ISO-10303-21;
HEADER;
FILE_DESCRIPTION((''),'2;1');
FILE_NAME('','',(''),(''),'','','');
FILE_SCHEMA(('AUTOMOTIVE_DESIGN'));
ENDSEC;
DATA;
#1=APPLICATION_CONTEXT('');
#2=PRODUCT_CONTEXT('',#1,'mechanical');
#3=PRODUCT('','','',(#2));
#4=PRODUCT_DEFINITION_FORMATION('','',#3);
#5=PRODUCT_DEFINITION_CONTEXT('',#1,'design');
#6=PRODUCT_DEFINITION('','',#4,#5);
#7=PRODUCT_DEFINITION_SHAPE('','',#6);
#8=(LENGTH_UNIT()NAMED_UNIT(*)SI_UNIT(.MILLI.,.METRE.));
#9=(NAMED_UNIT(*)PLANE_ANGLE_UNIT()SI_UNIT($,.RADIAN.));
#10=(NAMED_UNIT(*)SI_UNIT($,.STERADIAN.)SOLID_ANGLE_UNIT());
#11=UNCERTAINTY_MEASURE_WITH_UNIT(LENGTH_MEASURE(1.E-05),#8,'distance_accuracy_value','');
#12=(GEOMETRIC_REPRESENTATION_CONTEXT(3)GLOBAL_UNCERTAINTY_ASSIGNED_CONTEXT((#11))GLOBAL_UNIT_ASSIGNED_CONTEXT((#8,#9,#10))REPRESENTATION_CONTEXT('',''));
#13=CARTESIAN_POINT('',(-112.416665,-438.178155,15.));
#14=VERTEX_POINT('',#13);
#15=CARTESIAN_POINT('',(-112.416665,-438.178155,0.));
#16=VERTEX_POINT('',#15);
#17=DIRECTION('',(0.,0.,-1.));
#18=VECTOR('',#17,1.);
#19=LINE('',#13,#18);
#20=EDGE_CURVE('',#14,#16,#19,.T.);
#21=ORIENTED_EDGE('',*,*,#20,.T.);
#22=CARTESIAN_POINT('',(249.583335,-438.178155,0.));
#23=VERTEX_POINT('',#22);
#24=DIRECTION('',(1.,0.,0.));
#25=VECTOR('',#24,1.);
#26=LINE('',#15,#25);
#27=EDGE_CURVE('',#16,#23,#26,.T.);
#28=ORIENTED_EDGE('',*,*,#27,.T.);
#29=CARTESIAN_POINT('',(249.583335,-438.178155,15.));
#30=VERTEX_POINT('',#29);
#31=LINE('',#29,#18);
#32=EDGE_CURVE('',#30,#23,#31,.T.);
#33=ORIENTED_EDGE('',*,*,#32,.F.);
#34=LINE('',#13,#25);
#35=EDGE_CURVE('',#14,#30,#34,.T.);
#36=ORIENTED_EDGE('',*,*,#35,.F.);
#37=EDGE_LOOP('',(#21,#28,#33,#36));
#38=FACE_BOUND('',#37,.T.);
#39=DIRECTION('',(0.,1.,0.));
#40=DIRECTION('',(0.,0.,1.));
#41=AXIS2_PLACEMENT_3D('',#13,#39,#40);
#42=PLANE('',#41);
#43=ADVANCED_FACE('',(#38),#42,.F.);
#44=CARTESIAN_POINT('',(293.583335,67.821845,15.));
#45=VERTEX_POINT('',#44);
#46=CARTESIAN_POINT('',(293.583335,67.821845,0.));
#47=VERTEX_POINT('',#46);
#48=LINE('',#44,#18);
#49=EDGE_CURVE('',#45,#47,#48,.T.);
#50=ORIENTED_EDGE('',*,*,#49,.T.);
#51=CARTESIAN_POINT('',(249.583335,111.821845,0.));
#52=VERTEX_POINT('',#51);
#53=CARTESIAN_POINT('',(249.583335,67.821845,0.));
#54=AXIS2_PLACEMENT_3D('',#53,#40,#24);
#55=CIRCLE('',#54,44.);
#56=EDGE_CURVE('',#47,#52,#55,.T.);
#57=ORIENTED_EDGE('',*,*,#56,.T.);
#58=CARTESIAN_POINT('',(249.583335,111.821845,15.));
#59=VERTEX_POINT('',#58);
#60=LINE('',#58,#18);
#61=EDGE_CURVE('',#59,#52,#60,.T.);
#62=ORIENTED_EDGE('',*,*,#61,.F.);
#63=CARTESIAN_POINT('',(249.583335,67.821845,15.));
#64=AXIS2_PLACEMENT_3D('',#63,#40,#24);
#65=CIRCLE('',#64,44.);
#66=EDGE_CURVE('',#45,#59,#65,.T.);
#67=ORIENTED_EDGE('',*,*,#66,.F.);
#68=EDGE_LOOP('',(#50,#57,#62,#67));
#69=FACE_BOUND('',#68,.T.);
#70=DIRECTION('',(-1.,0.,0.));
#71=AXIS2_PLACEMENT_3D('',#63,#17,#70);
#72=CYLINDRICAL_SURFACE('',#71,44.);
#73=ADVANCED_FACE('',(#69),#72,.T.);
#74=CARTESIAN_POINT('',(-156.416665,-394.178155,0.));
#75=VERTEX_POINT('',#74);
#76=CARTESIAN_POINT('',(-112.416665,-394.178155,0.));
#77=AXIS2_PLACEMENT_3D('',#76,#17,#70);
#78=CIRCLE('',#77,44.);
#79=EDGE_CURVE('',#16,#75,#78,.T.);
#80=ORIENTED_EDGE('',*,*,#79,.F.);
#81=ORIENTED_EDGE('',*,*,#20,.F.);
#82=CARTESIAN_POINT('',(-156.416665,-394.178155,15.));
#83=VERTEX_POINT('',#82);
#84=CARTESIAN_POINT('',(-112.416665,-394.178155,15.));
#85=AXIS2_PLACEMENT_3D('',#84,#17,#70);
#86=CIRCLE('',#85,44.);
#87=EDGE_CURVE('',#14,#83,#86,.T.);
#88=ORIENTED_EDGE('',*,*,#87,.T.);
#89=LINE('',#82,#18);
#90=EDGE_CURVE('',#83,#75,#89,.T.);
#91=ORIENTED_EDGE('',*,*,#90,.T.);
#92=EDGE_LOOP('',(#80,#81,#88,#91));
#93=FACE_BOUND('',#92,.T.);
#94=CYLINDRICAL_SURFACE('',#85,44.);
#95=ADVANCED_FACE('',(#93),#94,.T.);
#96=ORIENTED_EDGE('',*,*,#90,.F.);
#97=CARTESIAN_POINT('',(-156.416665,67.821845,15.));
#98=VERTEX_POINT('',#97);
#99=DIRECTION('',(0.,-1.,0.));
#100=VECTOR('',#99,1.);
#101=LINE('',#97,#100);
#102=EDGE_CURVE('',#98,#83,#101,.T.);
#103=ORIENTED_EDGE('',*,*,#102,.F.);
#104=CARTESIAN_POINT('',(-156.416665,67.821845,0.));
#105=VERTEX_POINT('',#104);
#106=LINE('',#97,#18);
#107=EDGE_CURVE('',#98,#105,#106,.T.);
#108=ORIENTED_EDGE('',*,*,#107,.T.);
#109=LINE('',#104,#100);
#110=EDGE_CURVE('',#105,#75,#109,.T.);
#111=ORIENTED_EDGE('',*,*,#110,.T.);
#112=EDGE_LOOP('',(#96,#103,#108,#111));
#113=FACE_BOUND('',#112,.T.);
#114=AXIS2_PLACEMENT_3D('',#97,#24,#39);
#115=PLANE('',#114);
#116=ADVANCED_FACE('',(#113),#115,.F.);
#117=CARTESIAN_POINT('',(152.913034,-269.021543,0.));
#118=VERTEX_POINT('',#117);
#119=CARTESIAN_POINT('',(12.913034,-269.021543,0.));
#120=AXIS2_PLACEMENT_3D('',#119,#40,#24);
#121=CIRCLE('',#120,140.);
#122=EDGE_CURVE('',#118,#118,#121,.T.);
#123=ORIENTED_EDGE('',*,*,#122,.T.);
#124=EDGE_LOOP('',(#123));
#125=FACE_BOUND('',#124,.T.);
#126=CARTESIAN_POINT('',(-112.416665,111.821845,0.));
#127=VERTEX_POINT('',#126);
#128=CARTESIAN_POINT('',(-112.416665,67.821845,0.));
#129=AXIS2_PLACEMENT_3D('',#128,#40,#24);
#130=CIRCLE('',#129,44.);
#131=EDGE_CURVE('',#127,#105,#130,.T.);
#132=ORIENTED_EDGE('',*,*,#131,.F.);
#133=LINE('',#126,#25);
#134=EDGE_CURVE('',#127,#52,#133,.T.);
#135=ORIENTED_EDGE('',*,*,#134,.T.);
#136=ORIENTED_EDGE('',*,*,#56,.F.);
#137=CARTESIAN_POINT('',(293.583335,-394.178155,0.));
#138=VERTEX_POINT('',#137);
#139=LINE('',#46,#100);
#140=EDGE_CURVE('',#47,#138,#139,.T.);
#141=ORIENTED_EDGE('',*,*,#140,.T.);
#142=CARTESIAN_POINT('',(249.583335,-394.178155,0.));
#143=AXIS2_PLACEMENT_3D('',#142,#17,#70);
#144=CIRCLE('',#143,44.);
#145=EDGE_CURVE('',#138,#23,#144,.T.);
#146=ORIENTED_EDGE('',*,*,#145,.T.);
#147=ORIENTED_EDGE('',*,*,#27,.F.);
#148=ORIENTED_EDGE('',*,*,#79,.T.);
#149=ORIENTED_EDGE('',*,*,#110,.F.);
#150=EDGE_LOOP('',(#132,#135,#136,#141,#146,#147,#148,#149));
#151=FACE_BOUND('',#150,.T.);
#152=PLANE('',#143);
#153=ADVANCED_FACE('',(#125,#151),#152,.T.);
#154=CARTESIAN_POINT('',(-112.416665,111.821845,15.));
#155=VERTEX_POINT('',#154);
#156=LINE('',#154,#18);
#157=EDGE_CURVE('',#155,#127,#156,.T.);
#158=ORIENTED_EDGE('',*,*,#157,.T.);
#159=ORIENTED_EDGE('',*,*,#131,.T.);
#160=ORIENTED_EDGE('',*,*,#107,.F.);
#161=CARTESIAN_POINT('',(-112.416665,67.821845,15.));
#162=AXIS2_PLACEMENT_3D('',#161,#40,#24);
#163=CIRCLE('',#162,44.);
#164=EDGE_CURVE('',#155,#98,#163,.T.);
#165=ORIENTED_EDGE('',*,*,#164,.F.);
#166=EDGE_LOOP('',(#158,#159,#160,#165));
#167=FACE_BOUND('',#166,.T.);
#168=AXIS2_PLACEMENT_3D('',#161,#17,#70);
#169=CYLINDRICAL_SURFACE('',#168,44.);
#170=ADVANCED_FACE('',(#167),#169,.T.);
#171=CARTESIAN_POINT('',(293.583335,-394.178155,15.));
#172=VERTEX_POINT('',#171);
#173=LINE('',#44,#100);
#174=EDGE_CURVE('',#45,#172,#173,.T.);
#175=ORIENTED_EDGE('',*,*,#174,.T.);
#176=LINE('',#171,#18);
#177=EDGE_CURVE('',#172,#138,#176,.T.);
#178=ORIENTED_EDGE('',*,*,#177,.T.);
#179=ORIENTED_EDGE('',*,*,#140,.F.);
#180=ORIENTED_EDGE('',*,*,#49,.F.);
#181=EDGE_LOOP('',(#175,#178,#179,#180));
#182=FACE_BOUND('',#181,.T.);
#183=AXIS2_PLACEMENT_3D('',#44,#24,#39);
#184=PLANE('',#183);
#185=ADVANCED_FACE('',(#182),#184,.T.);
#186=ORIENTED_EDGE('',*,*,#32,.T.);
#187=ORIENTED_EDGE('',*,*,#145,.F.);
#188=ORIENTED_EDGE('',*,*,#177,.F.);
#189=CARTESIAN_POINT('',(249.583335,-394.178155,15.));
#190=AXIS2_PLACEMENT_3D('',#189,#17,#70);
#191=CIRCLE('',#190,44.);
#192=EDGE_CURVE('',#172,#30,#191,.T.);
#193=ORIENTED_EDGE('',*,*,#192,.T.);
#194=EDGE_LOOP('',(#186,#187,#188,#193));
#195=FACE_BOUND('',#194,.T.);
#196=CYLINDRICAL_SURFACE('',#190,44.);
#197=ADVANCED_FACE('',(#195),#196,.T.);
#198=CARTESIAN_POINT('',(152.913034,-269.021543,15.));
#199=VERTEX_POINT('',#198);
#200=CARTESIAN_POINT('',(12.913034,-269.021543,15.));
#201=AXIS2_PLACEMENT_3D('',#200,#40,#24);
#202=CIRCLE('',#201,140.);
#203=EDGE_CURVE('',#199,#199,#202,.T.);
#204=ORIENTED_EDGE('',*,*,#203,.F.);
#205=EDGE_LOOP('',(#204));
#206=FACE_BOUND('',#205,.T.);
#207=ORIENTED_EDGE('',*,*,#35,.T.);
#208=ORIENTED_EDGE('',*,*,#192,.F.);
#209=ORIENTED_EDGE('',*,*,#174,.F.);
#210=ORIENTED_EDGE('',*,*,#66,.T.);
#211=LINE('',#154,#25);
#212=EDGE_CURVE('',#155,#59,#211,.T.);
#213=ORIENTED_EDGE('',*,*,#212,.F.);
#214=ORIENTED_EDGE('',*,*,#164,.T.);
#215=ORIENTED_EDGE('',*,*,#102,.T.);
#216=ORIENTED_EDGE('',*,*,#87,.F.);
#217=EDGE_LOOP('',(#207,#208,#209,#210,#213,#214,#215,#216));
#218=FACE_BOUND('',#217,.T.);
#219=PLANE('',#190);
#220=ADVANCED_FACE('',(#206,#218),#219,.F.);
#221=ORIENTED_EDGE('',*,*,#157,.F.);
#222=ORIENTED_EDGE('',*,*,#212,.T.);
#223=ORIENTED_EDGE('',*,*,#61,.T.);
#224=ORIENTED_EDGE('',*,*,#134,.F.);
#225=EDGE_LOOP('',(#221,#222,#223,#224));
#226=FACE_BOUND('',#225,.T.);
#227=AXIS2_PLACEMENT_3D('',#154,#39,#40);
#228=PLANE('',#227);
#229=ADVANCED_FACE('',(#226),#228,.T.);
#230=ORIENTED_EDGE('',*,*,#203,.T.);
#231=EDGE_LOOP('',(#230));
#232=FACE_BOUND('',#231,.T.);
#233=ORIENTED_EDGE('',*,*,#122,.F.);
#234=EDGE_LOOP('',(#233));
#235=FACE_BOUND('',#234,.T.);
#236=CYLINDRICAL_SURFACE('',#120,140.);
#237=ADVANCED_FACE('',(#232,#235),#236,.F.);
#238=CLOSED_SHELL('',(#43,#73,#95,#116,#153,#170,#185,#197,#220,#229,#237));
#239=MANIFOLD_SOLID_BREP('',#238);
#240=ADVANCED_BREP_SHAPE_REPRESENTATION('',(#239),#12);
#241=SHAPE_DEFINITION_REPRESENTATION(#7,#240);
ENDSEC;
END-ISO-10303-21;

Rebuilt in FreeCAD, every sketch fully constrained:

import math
import FreeCAD as App
import Part
import Sketcher

V = App.Vector

doc = App.newDocument("Part")
body = doc.addObject("PartDesign::Body", "Body")

# Sketch on XY plane
sketch1 = body.newObject("Sketcher::SketchObject", "Sketch")
sketch1.AttachmentSupport = (doc.getObject("XY_Plane"), [""])
sketch1.MapMode = "FlatFace"
sketch1.addGeometry(Part.LineSegment(V(250, 112, 0), V(-112, 112, 0)), False)
sketch1.addGeometry(Part.ArcOfCircle(Part.Circle(V(-112, 68, 0), V(0, 0, 1), 44), math.radians(90), math.radians(180)), False)
sketch1.addGeometry(Part.LineSegment(V(-156, 68, 0), V(-156, -394, 0)), False)
sketch1.addGeometry(Part.ArcOfCircle(Part.Circle(V(-112, -394, 0), V(0, 0, 1), 44), math.radians(-180), math.radians(-90)), False)
sketch1.addGeometry(Part.LineSegment(V(-112, -438, 0), V(250, -438, 0)), False)
sketch1.addGeometry(Part.ArcOfCircle(Part.Circle(V(250, -394, 0), V(0, 0, 1), 44), math.radians(-90), math.radians(0)), False)
sketch1.addGeometry(Part.LineSegment(V(294, -394, 0), V(294, 68, 0)), False)
sketch1.addGeometry(Part.ArcOfCircle(Part.Circle(V(250, 68, 0), V(0, 0, 1), 44), math.radians(0), math.radians(90)), False)
sketch1.addConstraint(Sketcher.Constraint("Tangent", 0, 2, 1, 1))
sketch1.addConstraint(Sketcher.Constraint("Tangent", 1, 2, 2, 1))
sketch1.addConstraint(Sketcher.Constraint("Tangent", 2, 2, 3, 1))
sketch1.addConstraint(Sketcher.Constraint("Tangent", 3, 2, 4, 1))
sketch1.addConstraint(Sketcher.Constraint("Tangent", 4, 2, 5, 1))
sketch1.addConstraint(Sketcher.Constraint("Tangent", 5, 2, 6, 1))
sketch1.addConstraint(Sketcher.Constraint("Tangent", 6, 2, 7, 1))
sketch1.addConstraint(Sketcher.Constraint("Tangent", 7, 2, 0, 1))
sketch1.addConstraint(Sketcher.Constraint("Horizontal", 0))
sketch1.addConstraint(Sketcher.Constraint("Vertical", 2))
sketch1.addConstraint(Sketcher.Constraint("Horizontal", 4))
sketch1.addConstraint(Sketcher.Constraint("Vertical", 6))
sketch1.addConstraint(Sketcher.Constraint("Equal", 1, 3))
sketch1.addConstraint(Sketcher.Constraint("Equal", 3, 5))
sketch1.addConstraint(Sketcher.Constraint("Equal", 5, 7))
sketch1.addConstraint(Sketcher.Constraint("Radius", 1, 44.0))
sketch1.addConstraint(Sketcher.Constraint("DistanceX", 0, 2, 0, 1, 362.0))
sketch1.addConstraint(Sketcher.Constraint("DistanceY", 2, 2, 2, 1, 462.0))
sketch1.addConstraint(Sketcher.Constraint("DistanceX", 1, 3, -1, 1, 112.416665))
sketch1.addConstraint(Sketcher.Constraint("DistanceY", -1, 1, 1, 3, 67.821845))
pad1 = body.newObject("PartDesign::Pad", "Pad")
pad1.Profile = sketch1
pad1.Length = 15

# Sketch on XY plane
sketch2 = body.newObject("Sketcher::SketchObject", "Sketch001")
sketch2.AttachmentSupport = (doc.getObject("XY_Plane"), [""])
sketch2.MapMode = "FlatFace"
sketch2.AttachmentOffset = App.Placement(V(0, 0, 15), App.Rotation())
sketch2.addGeometry(Part.Circle(V(13, -269, 0), V(0, 0, 1), 140), False)
sketch2.addConstraint(Sketcher.Constraint("Diameter", 0, 280.0))
sketch2.addConstraint(Sketcher.Constraint("DistanceX", -1, 1, 0, 3, 12.913034))
sketch2.addConstraint(Sketcher.Constraint("DistanceY", 0, 3, -1, 1, 269.021543))
pocket1 = body.newObject("PartDesign::Pocket", "Pocket")
pocket1.Profile = sketch2
pocket1.Length = 15

doc.recompute()
